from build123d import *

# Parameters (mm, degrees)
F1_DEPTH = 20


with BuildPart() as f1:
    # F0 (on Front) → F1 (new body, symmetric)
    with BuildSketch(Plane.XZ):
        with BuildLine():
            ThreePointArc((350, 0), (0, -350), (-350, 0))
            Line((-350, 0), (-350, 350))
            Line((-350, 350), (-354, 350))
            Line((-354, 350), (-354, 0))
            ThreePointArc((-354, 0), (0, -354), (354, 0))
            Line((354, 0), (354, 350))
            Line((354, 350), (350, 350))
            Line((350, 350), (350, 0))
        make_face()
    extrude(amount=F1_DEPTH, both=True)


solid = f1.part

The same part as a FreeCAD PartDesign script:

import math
import FreeCAD as App
import Part
import Sketcher
Q = App.Units.Quantity

doc = App.newDocument("Part")
params = doc.addObject("Spreadsheet::Sheet", "Params")
for row, (alias, value) in enumerate([
    ("sketch1_radius", "350 mm"),
    ("sketch1_radius2", "354 mm"),
    ("sketch1_height", "350 mm"),
    ("pad1_length", "40 mm"),
], start=1):
    params.set(f"A{row}", alias)
    params.set(f"B{row}", "=" + value)
    params.setAlias(f"B{row}", alias)

body = doc.addObject("PartDesign::Body", "Body")

sketch1 = doc.addObject("Sketcher::SketchObject", "Sketch")
body.addObject(sketch1)
sketch1.AttachmentSupport = (doc.XZ_Plane, [""])
sketch1.MapMode = "FlatFace"
sketch1.addGeometry([
    Part.ArcOfCircle(Part.Circle(App.Vector(0, 0, 0), App.Vector(0, 0, 1), 350), math.radians(180), math.radians(360)),
    Part.LineSegment(App.Vector(-350, 0, 0), App.Vector(-350, 350, 0)),
    Part.LineSegment(App.Vector(-350, 350, 0), App.Vector(-354, 350, 0)),
    Part.LineSegment(App.Vector(-354, 350, 0), App.Vector(-354, 0, 0)),
    Part.ArcOfCircle(Part.Circle(App.Vector(0, 0, 0), App.Vector(0, 0, 1), 354), math.radians(180), math.radians(360)),
    Part.LineSegment(App.Vector(354, 0, 0), App.Vector(354, 350, 0)),
    Part.LineSegment(App.Vector(354, 350, 0), App.Vector(350, 350, 0)),
    Part.LineSegment(App.Vector(350, 350, 0), App.Vector(350, 0, 0)),
], False)
sketch1.addConstraint([
    Sketcher.Constraint("Tangent", 0, 1, 1, 1),
    Sketcher.Constraint("Coincident", 1, 2, 2, 1),
    Sketcher.Constraint("Coincident", 2, 2, 3, 1),
    Sketcher.Constraint("Tangent", 3, 2, 4, 1),
    Sketcher.Constraint("Tangent", 4, 2, 5, 1),
    Sketcher.Constraint("Coincident", 5, 2, 6, 1),
    Sketcher.Constraint("Coincident", 6, 2, 7, 1),
    Sketcher.Constraint("Tangent", 7, 2, 0, 2),
    Sketcher.Constraint("Vertical", 1),
    Sketcher.Constraint("Horizontal", 2),
    Sketcher.Constraint("Vertical", 3),
    Sketcher.Constraint("Vertical", 5),
    Sketcher.Constraint("Horizontal", 6),
    Sketcher.Constraint("Vertical", 7),
    Sketcher.Constraint("Coincident", 0, 3, -1, 1),
    Sketcher.Constraint("Coincident", 4, 3, -1, 1),
    Sketcher.Constraint("Horizontal", 2, 2, 5, 2),
    Sketcher.Constraint("Radius", 0, Q("350 mm")),
    Sketcher.Constraint("Radius", 4, Q("354 mm")),
    Sketcher.Constraint("DistanceY", 1, 1, 1, 2, Q("350 mm")),
])
sketch1.setExpression("Constraints[17]", "Params.sketch1_radius")
sketch1.setExpression("Constraints[18]", "Params.sketch1_radius2")
sketch1.setExpression("Constraints[19]", "Params.sketch1_height")
pad1 = doc.addObject("PartDesign::Pad", "Pad")
body.addObject(pad1)
pad1.Profile = sketch1
pad1.setExpression("Length", "Params.pad1_length")
pad1.Midplane = True

doc.recompute()
